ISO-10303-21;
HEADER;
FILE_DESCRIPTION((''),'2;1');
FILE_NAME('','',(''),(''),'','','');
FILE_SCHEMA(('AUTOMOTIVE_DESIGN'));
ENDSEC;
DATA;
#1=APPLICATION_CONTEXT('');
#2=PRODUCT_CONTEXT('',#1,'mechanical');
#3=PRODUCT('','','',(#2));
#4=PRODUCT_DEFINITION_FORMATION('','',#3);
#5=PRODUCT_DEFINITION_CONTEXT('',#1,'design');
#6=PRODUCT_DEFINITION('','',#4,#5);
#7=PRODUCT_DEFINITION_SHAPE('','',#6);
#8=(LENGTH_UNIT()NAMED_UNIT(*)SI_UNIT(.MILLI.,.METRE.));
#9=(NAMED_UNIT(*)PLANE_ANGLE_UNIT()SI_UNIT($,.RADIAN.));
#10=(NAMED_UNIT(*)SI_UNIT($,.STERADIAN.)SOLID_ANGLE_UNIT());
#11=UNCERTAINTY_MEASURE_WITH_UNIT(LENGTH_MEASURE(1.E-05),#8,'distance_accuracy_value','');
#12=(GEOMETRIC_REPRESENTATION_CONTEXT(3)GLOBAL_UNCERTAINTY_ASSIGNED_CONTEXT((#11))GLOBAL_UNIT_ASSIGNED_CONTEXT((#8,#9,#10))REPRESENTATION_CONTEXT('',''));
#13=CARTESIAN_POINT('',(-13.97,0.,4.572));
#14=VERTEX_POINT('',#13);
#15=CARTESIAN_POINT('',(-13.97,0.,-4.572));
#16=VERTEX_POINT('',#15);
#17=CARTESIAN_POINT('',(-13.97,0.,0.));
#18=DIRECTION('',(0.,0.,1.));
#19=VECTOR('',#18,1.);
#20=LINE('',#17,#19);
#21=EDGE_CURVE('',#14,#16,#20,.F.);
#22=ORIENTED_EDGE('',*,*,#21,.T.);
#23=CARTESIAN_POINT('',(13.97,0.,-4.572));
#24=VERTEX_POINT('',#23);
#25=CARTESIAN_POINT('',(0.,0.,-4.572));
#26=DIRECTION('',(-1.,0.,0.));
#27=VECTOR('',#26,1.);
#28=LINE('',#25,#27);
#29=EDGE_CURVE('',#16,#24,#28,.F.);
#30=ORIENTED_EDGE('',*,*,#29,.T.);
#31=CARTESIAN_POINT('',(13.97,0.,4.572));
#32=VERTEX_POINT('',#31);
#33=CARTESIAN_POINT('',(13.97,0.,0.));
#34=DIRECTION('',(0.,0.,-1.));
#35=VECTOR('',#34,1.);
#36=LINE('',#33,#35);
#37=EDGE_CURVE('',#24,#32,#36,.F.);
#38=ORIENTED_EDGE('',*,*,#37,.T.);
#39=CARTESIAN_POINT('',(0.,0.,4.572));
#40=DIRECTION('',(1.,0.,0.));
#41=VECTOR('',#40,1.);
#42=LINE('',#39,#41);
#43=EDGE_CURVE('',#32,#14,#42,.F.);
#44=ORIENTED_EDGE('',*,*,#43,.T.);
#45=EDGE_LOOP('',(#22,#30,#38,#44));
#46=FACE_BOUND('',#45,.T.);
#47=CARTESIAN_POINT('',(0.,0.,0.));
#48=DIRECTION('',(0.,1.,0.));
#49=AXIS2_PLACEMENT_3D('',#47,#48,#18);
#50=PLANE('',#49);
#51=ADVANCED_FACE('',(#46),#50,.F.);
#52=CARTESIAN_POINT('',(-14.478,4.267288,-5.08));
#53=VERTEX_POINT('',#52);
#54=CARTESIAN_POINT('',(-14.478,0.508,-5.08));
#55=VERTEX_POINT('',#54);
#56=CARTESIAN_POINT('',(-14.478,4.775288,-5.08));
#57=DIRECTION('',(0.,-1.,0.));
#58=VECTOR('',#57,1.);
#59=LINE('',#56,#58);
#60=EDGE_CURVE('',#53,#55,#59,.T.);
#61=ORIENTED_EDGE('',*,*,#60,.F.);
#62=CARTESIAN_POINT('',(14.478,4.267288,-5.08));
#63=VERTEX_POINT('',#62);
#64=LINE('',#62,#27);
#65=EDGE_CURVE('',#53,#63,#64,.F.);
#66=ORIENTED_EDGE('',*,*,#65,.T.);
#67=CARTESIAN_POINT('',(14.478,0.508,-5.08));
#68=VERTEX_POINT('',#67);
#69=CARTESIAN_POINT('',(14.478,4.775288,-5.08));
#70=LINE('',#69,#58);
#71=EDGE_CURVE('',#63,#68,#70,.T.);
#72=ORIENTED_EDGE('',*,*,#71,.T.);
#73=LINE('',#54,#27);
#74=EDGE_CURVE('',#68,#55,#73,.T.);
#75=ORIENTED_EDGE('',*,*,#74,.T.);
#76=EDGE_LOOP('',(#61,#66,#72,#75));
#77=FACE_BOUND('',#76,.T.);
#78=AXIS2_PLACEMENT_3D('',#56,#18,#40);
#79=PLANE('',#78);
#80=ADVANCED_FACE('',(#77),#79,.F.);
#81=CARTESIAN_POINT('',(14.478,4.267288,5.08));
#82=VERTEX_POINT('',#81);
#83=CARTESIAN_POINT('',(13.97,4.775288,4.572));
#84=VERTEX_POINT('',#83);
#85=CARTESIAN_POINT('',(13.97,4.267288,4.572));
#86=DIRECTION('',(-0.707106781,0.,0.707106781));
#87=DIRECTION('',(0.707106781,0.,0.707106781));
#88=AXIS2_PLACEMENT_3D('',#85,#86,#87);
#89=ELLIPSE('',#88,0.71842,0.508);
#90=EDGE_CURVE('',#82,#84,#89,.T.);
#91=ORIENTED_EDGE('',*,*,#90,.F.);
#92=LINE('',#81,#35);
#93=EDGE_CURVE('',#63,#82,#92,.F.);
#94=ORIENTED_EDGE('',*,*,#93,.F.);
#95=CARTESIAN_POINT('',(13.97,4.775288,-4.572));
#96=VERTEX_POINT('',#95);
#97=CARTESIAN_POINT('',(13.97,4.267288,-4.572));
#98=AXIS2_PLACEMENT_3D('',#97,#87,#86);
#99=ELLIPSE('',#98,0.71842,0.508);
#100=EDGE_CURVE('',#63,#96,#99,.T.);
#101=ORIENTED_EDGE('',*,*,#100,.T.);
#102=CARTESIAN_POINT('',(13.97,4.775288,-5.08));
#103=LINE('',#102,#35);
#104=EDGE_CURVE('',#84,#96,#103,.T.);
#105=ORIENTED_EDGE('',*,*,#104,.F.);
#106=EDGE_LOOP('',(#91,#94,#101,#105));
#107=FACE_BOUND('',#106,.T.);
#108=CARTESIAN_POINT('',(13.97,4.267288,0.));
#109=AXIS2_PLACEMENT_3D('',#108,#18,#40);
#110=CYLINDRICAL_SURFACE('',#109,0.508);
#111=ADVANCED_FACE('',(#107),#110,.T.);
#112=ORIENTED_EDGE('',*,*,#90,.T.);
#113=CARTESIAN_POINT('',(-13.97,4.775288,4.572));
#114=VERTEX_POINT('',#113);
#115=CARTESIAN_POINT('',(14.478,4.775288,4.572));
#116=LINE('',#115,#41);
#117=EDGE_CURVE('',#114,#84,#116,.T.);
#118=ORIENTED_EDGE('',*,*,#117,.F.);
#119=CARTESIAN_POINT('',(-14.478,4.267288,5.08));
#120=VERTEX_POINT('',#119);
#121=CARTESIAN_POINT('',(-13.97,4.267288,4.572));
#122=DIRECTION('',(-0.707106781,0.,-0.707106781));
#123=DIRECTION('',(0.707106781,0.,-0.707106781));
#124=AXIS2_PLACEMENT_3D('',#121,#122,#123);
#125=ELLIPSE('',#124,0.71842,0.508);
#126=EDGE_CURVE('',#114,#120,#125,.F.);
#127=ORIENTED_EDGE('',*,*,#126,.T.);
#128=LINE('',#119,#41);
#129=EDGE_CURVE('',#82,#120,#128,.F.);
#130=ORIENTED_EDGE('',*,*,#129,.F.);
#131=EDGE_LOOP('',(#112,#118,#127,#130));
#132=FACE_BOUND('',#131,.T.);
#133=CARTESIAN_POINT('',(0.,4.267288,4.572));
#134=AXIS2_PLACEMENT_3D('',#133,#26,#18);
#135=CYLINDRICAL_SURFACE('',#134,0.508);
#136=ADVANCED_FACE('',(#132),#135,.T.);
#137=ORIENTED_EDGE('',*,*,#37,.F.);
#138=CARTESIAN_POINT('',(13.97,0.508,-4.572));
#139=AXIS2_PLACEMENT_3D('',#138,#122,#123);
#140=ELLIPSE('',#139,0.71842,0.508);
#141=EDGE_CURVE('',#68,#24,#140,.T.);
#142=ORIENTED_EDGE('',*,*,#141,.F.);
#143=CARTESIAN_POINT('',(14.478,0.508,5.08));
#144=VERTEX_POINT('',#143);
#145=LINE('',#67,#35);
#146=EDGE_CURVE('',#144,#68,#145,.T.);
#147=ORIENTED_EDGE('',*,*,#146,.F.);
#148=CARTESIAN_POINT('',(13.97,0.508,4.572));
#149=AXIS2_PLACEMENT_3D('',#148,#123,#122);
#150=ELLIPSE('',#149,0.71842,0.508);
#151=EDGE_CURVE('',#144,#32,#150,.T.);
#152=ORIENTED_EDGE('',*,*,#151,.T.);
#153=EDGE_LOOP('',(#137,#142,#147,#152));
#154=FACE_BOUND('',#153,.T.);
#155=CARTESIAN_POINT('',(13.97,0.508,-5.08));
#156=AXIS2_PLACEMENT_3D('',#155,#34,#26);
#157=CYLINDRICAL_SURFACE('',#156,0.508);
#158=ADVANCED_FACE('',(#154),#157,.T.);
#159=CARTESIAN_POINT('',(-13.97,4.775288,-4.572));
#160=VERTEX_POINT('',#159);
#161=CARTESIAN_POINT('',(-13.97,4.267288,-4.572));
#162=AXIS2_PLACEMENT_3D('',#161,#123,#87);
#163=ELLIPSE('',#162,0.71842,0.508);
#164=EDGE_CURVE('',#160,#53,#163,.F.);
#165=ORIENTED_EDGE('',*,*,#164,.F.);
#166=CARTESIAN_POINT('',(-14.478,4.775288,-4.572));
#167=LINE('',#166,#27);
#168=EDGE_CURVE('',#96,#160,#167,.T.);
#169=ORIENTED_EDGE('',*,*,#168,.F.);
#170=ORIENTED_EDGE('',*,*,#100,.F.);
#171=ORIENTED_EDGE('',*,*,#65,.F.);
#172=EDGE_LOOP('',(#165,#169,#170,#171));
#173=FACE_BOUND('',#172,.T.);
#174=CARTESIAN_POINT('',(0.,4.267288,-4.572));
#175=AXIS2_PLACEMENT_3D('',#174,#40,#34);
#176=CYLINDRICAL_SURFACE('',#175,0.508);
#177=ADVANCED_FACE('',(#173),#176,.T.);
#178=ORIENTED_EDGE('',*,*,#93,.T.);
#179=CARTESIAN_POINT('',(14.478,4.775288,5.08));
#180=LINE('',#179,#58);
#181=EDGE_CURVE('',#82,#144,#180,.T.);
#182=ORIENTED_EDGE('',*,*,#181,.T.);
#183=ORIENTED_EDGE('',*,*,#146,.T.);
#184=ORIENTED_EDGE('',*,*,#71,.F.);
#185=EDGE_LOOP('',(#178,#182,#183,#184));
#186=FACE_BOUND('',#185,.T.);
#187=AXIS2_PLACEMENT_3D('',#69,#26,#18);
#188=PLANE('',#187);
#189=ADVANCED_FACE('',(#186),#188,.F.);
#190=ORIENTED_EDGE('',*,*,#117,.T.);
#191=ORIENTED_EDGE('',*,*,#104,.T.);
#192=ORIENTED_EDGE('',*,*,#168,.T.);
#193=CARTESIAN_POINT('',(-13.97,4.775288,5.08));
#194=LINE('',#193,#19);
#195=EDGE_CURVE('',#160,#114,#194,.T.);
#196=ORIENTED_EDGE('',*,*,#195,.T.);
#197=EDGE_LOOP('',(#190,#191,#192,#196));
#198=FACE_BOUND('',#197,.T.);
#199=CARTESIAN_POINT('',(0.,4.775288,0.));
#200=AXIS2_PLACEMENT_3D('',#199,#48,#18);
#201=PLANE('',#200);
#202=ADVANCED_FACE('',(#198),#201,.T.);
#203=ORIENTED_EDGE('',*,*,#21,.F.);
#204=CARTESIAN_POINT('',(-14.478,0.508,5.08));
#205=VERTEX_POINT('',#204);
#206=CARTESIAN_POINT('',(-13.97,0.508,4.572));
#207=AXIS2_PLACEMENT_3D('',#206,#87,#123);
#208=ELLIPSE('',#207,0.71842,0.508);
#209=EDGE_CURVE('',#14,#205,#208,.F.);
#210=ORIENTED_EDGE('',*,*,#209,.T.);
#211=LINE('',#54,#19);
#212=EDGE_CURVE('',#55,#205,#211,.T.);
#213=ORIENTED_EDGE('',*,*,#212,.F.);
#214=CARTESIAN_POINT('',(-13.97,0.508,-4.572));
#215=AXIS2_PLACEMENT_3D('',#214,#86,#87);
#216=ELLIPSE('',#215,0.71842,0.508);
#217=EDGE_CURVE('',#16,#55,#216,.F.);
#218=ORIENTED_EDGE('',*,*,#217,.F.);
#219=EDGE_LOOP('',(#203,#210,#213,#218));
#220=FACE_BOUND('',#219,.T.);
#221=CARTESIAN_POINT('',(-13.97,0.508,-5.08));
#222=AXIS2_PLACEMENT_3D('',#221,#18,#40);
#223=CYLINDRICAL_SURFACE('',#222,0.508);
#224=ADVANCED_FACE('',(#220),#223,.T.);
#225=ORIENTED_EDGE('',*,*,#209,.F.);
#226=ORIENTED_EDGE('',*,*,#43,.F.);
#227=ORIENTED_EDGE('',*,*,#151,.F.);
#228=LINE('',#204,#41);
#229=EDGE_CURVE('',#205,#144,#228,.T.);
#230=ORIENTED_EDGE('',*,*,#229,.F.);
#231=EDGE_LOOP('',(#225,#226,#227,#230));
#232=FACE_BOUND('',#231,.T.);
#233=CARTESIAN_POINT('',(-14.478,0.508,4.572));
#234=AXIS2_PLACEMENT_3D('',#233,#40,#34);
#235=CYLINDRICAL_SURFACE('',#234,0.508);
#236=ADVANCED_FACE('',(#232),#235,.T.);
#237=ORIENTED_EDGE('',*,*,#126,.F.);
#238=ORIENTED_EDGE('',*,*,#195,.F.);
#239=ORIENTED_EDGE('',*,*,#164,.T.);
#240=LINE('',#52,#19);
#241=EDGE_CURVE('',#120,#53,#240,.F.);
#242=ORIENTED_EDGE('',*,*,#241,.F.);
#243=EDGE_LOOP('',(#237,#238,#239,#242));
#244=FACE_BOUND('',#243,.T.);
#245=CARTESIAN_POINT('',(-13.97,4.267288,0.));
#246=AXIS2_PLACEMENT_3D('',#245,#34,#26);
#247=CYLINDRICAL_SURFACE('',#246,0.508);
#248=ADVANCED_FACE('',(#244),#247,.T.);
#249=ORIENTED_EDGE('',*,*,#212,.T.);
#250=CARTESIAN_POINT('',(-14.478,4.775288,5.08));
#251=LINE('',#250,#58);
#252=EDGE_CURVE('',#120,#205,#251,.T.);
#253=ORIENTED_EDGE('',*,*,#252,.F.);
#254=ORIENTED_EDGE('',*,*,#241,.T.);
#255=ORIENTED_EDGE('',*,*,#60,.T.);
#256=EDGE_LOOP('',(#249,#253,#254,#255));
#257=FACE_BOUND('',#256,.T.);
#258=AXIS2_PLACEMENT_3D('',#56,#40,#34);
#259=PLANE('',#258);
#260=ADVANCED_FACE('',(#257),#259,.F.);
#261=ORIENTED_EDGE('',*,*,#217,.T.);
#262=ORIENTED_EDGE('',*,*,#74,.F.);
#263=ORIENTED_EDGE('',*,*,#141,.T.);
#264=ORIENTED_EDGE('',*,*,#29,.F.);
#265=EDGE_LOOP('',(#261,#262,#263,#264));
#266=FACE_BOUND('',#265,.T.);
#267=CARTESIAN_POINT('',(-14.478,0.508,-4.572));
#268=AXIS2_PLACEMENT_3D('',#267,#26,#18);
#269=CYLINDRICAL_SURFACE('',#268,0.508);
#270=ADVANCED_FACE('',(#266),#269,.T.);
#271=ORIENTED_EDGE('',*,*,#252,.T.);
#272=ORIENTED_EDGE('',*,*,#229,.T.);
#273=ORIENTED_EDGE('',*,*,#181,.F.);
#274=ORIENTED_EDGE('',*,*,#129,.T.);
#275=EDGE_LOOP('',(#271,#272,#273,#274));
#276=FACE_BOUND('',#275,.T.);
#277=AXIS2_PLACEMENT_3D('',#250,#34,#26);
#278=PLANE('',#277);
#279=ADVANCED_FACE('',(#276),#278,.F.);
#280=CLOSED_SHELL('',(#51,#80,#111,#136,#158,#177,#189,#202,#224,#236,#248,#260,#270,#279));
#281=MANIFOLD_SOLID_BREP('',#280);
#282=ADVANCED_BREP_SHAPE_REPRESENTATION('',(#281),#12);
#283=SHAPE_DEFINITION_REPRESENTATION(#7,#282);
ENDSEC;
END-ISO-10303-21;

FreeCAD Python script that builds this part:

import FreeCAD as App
import Part
import Sketcher
from FreeCAD import Vector
Q = App.Units.Quantity


def edges_at(feature, points):
    """Names of the edges that pass closest to the given points."""
    edges = feature.Shape.Edges
    near = lambda p: min(range(len(edges)), key=lambda i: edges[i].distToShape(Part.Vertex(*p))[0])
    return sorted({f"Edge{near(p) + 1}" for p in points})


def add_polygon(sketch, points):
    """Adds a closed chain of lines whose ends are joined by coincident constraints."""
    first, n = sketch.GeometryCount, len(points)
    for a, b in zip(points, points[1:] + points[:1]):
        sketch.addGeometry(Part.LineSegment(App.Vector(*a, 0), App.Vector(*b, 0)), False)
    for i in range(n):
        sketch.addConstraint(Sketcher.Constraint("Coincident", first + i, 2, first + (i + 1) % n, 1))

doc = App.newDocument("Part")
body = doc.addObject("PartDesign::Body", "Body")

# Sketch on XZ plane
sketch1 = doc.addObject("Sketcher::SketchObject", "Sketch")
body.addObject(sketch1)
sketch1.AttachmentSupport = (doc.XZ_Plane, [""])
sketch1.MapMode = "FlatFace"
add_polygon(sketch1, [(-14.478, -5.08), (-14.478, 5.08), (14.478, 5.08), (14.478, -5.08)])  # lines 0-3
sketch1.addConstraint([
    Sketcher.Constraint("Vertical", 0),
    Sketcher.Constraint("Horizontal", 1),
    Sketcher.Constraint("Vertical", 2),
    Sketcher.Constraint("Horizontal", 3),
    Sketcher.Constraint("Symmetric", 0, 2, 2, 2, -1, 1),
    Sketcher.Constraint("DistanceY", 0, 1, 0, 2, Q("0.4 in")),
    Sketcher.Constraint("DistanceX", 1, 1, 1, 2, Q("1.14 in")),
])
pad1 = doc.addObject("PartDesign::Pad", "Pad")
body.addObject(pad1)
pad1.Profile = sketch1
pad1.Length = 4.775288
pad1.Reversed = True
doc.recompute()

fillet = doc.addObject("PartDesign::Fillet", "Fillet")
body.addObject(fillet)
fillet.Base = (pad1, edges_at(pad1, [
    (-14.478, 4.775, 0),
    (0, 4.775, 5.08),
    (14.478, 4.775, 0),
    (0, 0, 5.08),
    (-14.478, 0, 0),
    (0, 0, -5.08),
    (14.478, 0, 0),
    (0, 4.775, -5.08),
]))
fillet.Radius = Q("0.02 in")

doc.recompute()
